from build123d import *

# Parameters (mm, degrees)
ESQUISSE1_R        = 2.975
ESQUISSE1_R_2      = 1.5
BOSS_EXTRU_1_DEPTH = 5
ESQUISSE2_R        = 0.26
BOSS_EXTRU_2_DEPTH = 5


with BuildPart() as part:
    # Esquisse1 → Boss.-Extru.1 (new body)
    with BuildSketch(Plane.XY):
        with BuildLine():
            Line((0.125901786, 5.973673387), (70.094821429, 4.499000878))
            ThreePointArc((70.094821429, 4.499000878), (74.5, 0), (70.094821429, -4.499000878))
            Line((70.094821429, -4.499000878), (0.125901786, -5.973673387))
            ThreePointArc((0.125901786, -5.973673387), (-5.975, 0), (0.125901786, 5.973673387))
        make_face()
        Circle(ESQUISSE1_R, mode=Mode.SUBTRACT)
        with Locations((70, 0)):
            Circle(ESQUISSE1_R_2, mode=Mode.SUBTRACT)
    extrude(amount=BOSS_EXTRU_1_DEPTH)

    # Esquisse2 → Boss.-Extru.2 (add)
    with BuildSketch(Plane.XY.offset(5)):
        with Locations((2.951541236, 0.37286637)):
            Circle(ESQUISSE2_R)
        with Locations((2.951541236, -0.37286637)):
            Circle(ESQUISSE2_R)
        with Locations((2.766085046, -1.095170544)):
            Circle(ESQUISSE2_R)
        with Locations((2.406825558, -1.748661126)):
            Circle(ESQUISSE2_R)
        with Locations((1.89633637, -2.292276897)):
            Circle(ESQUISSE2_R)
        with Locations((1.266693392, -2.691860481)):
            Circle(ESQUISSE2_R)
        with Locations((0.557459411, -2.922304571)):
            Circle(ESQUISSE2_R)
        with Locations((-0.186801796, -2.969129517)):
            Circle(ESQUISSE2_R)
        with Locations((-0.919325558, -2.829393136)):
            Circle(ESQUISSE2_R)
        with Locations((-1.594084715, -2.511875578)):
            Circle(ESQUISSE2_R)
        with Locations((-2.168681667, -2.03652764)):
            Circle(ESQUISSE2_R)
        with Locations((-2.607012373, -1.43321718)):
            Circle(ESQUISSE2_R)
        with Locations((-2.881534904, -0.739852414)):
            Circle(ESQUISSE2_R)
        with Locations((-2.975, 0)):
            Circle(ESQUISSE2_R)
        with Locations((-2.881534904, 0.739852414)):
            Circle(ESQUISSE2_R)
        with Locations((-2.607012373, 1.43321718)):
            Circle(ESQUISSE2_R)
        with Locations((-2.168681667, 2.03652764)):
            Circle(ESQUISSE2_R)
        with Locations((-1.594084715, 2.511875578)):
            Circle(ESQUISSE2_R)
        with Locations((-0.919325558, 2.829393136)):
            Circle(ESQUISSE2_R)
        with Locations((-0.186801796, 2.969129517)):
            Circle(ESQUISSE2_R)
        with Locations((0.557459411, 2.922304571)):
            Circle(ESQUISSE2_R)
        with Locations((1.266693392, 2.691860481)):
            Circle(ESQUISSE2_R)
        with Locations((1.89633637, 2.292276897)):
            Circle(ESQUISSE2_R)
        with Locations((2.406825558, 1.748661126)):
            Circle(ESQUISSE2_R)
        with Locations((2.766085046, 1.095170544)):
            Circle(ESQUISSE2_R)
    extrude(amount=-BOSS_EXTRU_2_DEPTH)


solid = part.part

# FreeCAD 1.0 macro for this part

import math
import FreeCAD as App
import Part
import Sketcher

V = App.Vector

doc = App.newDocument("Part")
body = doc.addObject("PartDesign::Body", "Body")

sketch1 = body.newObject("Sketcher::SketchObject", "Sketch")
sketch1.AttachmentSupport = (doc.getObject("XY_Plane"), [""])
sketch1.MapMode = "FlatFace"
sketch1.addGeometry(Part.LineSegment(V(70.094821, 4.499001, 0), V(0.125902, 5.973673, 0)), False)
sketch1.addGeometry(Part.ArcOfCircle(Part.Circle(V(0, 0, 0), V(0, 0, 1), 5.975), math.radians(88.792607), math.radians(271.207393)), False)
sketch1.addGeometry(Part.LineSegment(V(0.125902, -5.973673, 0), V(70.094821, -4.499001, 0)), False)
sketch1.addGeometry(Part.ArcOfCircle(Part.Circle(V(70, 0, 0), V(0, 0, 1), 4.5), math.radians(-88.792607), math.radians(88.792607)), False)
sketch1.addGeometry(Part.Circle(V(70, 0, 0), V(0, 0, 1), 1.5), False)
sketch1.addGeometry(Part.Circle(V(0, 0, 0), V(0, 0, 1), 2.975), False)
sketch1.addConstraint(Sketcher.Constraint("Tangent", 0, 2, 1, 1))
sketch1.addConstraint(Sketcher.Constraint("Tangent", 1, 2, 2, 1))
sketch1.addConstraint(Sketcher.Constraint("Tangent", 2, 2, 3, 1))
sketch1.addConstraint(Sketcher.Constraint("Tangent", 3, 2, 0, 1))
sketch1.addConstraint(Sketcher.Constraint("Coincident", 1, 3, -1, 1))
sketch1.addConstraint(Sketcher.Constraint("Coincident", 5, 3, -1, 1))
sketch1.addConstraint(Sketcher.Constraint("Coincident", 4, 3, 3, 3))
sketch1.addConstraint(Sketcher.Constraint("PointOnObject", 3, 3, -1))
sketch1.addConstraint(Sketcher.Constraint("Diameter", 4, 3.0))
sketch1.addConstraint(Sketcher.Constraint("Radius", 3, 4.5))
sketch1.addConstraint(Sketcher.Constraint("Diameter", 5, 5.95))
sketch1.addConstraint(Sketcher.Constraint("DistanceX", -1, 1, 3, 3, 70.0))
sketch1.addConstraint(Sketcher.Constraint("Radius", 1, 5.975))
pad1 = body.newObject("PartDesign::Pad", "Pad")
pad1.Profile = sketch1
pad1.Length = 5

sketch2 = body.newObject("Sketcher::SketchObject", "Sketch001")
sketch2.AttachmentSupport = (doc.getObject("XY_Plane"), [""])
sketch2.MapMode = "FlatFace"
sketch2.AttachmentOffset = App.Placement(V(0, 0, 5), App.Rotation())
sketch2.addGeometry(Part.Circle(V(2.951541, 0.372866, 0), V(0, 0, 1), 0.26), False)
sketch2.addGeometry(Part.Circle(V(2.951541, -0.372866, 0), V(0, 0, 1), 0.26), False)
sketch2.addGeometry(Part.Circle(V(2.766085, -1.095171, 0), V(0, 0, 1), 0.26), False)
sketch2.addGeometry(Part.Circle(V(2.406826, -1.748661, 0), V(0, 0, 1), 0.26), False)
sketch2.addGeometry(Part.Circle(V(1.896336, -2.292277, 0), V(0, 0, 1), 0.26), False)
sketch2.addGeometry(Part.Circle(V(1.266693, -2.69186, 0), V(0, 0, 1), 0.26), False)
sketch2.addGeometry(Part.Circle(V(0.557459, -2.922305, 0), V(0, 0, 1), 0.26), False)
sketch2.addGeometry(Part.Circle(V(-0.186802, -2.96913, 0), V(0, 0, 1), 0.26), False)
sketch2.addGeometry(Part.Circle(V(-0.919326, -2.829393, 0), V(0, 0, 1), 0.26), False)
sketch2.addGeometry(Part.Circle(V(-1.594085, -2.511876, 0), V(0, 0, 1), 0.26), False)
sketch2.addGeometry(Part.Circle(V(-2.168682, -2.036528, 0), V(0, 0, 1), 0.26), False)
sketch2.addGeometry(Part.Circle(V(-2.607012, -1.433217, 0), V(0, 0, 1), 0.26), False)
sketch2.addGeometry(Part.Circle(V(-2.881535, -0.739852, 0), V(0, 0, 1), 0.26), False)
sketch2.addGeometry(Part.Circle(V(-2.975, 0, 0), V(0, 0, 1), 0.26), False)
sketch2.addGeometry(Part.Circle(V(-2.881535, 0.739852, 0), V(0, 0, 1), 0.26), False)
sketch2.addGeometry(Part.Circle(V(-2.607012, 1.433217, 0), V(0, 0, 1), 0.26), False)
sketch2.addGeometry(Part.Circle(V(-2.168682, 2.036528, 0), V(0, 0, 1), 0.26), False)
sketch2.addGeometry(Part.Circle(V(-1.594085, 2.511876, 0), V(0, 0, 1), 0.26), False)
sketch2.addGeometry(Part.Circle(V(-0.919326, 2.829393, 0), V(0, 0, 1), 0.26), False)
sketch2.addGeometry(Part.Circle(V(-0.186802, 2.96913, 0), V(0, 0, 1), 0.26), False)
sketch2.addGeometry(Part.Circle(V(0.557459, 2.922305, 0), V(0, 0, 1), 0.26), False)
sketch2.addGeometry(Part.Circle(V(1.266693, 2.69186, 0), V(0, 0, 1), 0.26), False)
sketch2.addGeometry(Part.Circle(V(1.896336, 2.292277, 0), V(0, 0, 1), 0.26), False)
sketch2.addGeometry(Part.Circle(V(2.406826, 1.748661, 0), V(0, 0, 1), 0.26), False)
sketch2.addGeometry(Part.Circle(V(2.766085, 1.095171, 0), V(0, 0, 1), 0.26), False)
sketch2.addConstraint(Sketcher.Constraint("Equal", 0, 1))
sketch2.addConstraint(Sketcher.Constraint("Equal", 1, 2))
sketch2.addConstraint(Sketcher.Constraint("Equal", 2, 3))
sketch2.addConstraint(Sketcher.Constraint("Equal", 3, 4))
sketch2.addConstraint(Sketcher.Constraint("Equal", 4, 5))
sketch2.addConstraint(Sketcher.Constraint("Equal", 5, 6))
sketch2.addConstraint(Sketcher.Constraint("Equal", 6, 7))
sketch2.addConstraint(Sketcher.Constraint("Equal", 7, 8))
sketch2.addConstraint(Sketcher.Constraint("Equal", 8, 9))
sketch2.addConstraint(Sketcher.Constraint("Equal", 9, 10))
sketch2.addConstraint(Sketcher.Constraint("Equal", 10, 11))
sketch2.addConstraint(Sketcher.Constraint("Equal", 11, 12))
sketch2.addConstraint(Sketcher.Constraint("Equal", 12, 13))
sketch2.addConstraint(Sketcher.Constraint("Equal", 13, 14))
sketch2.addConstraint(Sketcher.Constraint("Equal", 14, 15))
sketch2.addConstraint(Sketcher.Constraint("Equal", 15, 16))
sketch2.addConstraint(Sketcher.Constraint("Equal", 16, 17))
sketch2.addConstraint(Sketcher.Constraint("Equal", 17, 18))
sketch2.addConstraint(Sketcher.Constraint("Equal", 18, 19))
sketch2.addConstraint(Sketcher.Constraint("Equal", 19, 20))
sketch2.addConstraint(Sketcher.Constraint("Equal", 20, 21))
sketch2.addConstraint(Sketcher.Constraint("Equal", 21, 22))
sketch2.addConstraint(Sketcher.Constraint("Equal", 22, 23))
sketch2.addConstraint(Sketcher.Constraint("Equal", 23, 24))
sketch2.addConstraint(Sketcher.Constraint("Symmetric", 0, 3, 1, 3, -1))
sketch2.addConstraint(Sketcher.Constraint("Symmetric", 12, 3, 14, 3, -1))
sketch2.addConstraint(Sketcher.Constraint("Symmetric", 11, 3, 15, 3, -1))
sketch2.addConstraint(Sketcher.Constraint("Symmetric", 10, 3, 16, 3, -1))
sketch2.addConstraint(Sketcher.Constraint("Symmetric", 9, 3, 17, 3, -1))
sketch2.addConstraint(Sketcher.Constraint("Symmetric", 8, 3, 18, 3, -1))
sketch2.addConstraint(Sketcher.Constraint("Symmetric", 7, 3, 19, 3, -1))
sketch2.addConstraint(Sketcher.Constraint("Symmetric", 6, 3, 20, 3, -1))
sketch2.addConstraint(Sketcher.Constraint("Symmetric", 5, 3, 21, 3, -1))
sketch2.addConstraint(Sketcher.Constraint("Symmetric", 4, 3, 22, 3, -1))
sketch2.addConstraint(Sketcher.Constraint("Symmetric", 3, 3, 23, 3, -1))
sketch2.addConstraint(Sketcher.Constraint("Symmetric", 2, 3, 24, 3, -1))
sketch2.addConstraint(Sketcher.Constraint("PointOnObject", 13, 3, -1))
sketch2.addConstraint(Sketcher.Constraint("Diameter", 0, 0.52))
sketch2.addConstraint(Sketcher.Constraint("DistanceX", 13, 3, -1, 1, 2.975))
sketch2.addConstraint(Sketcher.Constraint("DistanceX", 7, 3, -1, 1, 0.186802))
sketch2.addConstraint(Sketcher.Constraint("DistanceY", 5, 3, 3, 3, 0.943199))
sketch2.addConstraint(Sketcher.Constraint("DistanceY", 9, 3, 4, 3, 0.219599))
sketch2.addConstraint(Sketcher.Constraint("DistanceY", 7, 3, 10, 3, 0.932602))
sketch2.addConstraint(Sketcher.Constraint("DistanceX", -1, 1, 0, 3, 2.951541))
sketch2.addConstraint(Sketcher.Constraint("DistanceY", 2, 3, -1, 1, 1.095171))
sketch2.addConstraint(Sketcher.Constraint("DistanceY", 3, 3, -1, 1, 1.748661))
sketch2.addConstraint(Sketcher.Constraint("DistanceX", -1, 1, 6, 3, 0.557459))
sketch2.addConstraint(Sketcher.Constraint("DistanceY", 7, 3, -1, 1, 2.96913))
sketch2.addConstraint(Sketcher.Constraint("DistanceX", 10, 3, -1, 1, 2.168682))
sketch2.addConstraint(Sketcher.Constraint("DistanceX", 3, 3, 2, 3, 0.359259))
sketch2.addConstraint(Sketcher.Constraint("DistanceX", 4, 3, 3, 3, 0.510489))
sketch2.addConstraint(Sketcher.Constraint("DistanceY", 4, 3, 1, 3, 1.919411))
sketch2.addConstraint(Sketcher.Constraint("DistanceX", 5, 3, 2, 3, 1.499392))
sketch2.addConstraint(Sketcher.Constraint("DistanceY", 6, 3, 1, 3, 2.549438))
sketch2.addConstraint(Sketcher.Constraint("DistanceX", 7, 3, 4, 3, 2.083138))
sketch2.addConstraint(Sketcher.Constraint("DistanceY", 6, 3, 8, 3, 0.092911))
sketch2.addConstraint(Sketcher.Constraint("DistanceX", 8, 3, 5, 3, 2.186019))
sketch2.addConstraint(Sketcher.Constraint("DistanceX", 9, 3, 8, 3, 0.674759))
sketch2.addConstraint(Sketcher.Constraint("DistanceX", 11, 3, 10, 3, 0.438331))
sketch2.addConstraint(Sketcher.Constraint("DistanceY", 10, 3, 11, 3, 0.60331))
sketch2.addConstraint(Sketcher.Constraint("DistanceY", 9, 3, 11, 3, 1.078658))
sketch2.addConstraint(Sketcher.Constraint("DistanceX", 12, 3, 9, 3, 1.28745))
sketch2.addConstraint(Sketcher.Constraint("DistanceY", 8, 3, 12, 3, 2.089541))
pad2 = body.newObject("PartDesign::Pad", "Pad001")
pad2.Profile = sketch2
pad2.Length = 5
pad2.Reversed = True

doc.recompute()
